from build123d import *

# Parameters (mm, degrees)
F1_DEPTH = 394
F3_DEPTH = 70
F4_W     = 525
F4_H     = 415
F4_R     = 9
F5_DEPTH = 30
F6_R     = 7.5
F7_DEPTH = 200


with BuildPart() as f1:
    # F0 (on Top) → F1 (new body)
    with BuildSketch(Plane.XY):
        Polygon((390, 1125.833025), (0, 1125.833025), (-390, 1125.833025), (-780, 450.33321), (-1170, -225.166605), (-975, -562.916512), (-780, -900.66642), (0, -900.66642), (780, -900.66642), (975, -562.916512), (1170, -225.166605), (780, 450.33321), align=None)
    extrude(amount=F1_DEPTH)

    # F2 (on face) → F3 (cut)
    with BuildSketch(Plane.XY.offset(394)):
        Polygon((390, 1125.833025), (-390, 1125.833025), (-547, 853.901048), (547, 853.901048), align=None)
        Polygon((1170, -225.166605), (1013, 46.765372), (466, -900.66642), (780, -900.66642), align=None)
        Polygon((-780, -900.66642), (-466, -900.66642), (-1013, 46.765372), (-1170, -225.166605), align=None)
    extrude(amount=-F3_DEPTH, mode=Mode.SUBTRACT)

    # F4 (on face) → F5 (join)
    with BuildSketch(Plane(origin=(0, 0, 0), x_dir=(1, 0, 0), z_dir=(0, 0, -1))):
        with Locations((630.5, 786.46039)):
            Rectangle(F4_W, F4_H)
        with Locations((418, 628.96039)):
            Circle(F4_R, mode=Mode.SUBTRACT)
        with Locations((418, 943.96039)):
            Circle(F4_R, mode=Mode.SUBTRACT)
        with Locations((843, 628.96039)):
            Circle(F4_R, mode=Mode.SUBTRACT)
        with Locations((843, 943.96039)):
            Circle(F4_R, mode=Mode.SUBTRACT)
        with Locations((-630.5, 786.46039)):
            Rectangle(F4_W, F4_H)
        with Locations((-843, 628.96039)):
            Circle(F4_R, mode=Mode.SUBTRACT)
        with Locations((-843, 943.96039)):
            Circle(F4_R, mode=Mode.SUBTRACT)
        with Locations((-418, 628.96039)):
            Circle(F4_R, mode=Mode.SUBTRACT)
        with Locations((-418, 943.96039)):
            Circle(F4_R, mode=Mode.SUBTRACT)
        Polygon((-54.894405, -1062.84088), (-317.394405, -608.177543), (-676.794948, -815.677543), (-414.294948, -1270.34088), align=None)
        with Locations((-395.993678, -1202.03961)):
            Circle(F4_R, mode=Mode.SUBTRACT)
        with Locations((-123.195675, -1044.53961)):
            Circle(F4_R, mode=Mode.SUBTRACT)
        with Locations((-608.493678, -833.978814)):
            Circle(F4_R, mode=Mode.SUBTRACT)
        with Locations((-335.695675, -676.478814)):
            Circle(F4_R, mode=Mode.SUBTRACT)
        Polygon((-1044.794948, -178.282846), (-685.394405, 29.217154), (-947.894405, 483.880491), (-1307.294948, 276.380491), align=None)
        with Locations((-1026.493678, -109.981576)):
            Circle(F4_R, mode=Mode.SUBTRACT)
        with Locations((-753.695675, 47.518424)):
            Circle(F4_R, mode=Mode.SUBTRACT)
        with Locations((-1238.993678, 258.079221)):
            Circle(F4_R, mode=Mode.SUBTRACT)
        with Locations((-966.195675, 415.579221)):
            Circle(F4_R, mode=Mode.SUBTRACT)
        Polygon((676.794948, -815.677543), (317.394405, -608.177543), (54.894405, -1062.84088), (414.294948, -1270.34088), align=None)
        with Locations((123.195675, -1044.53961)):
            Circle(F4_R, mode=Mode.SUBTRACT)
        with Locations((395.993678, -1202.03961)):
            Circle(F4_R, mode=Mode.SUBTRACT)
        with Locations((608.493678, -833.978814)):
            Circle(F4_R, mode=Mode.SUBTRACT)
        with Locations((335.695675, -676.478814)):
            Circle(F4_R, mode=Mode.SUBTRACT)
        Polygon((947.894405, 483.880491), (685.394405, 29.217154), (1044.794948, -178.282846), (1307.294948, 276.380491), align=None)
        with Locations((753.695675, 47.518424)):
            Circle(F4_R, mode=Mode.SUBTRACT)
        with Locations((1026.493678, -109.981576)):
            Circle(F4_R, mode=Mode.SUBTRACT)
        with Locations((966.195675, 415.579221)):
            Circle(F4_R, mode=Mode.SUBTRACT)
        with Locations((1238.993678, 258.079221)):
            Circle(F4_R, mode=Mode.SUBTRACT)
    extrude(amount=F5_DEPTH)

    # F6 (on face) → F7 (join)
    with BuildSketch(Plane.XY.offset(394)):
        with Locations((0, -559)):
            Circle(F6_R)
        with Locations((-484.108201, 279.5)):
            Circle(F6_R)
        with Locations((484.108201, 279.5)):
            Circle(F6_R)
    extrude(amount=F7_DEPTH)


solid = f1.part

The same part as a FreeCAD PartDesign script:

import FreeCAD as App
import Part
import Sketcher

V = App.Vector
Q = App.Units.Quantity

doc = App.newDocument("Part")
body = doc.addObject("PartDesign::Body", "Body")

# Sketch on XY plane
sketch1 = doc.addObject("Sketcher::SketchObject", "Sketch")
body.addObject(sketch1)
sketch1.AttachmentSupport = (doc.XY_Plane, [""])
sketch1.MapMode = "FlatFace"
sketch1.addGeometry([
    Part.LineSegment(V(390, 1125.833025, 0), V(-390, 1125.833025, 0)),  # 0
    Part.LineSegment(V(-390, 1125.833025, 0), V(-1170, -225.166605, 0)),  # 1
    Part.LineSegment(V(-1170, -225.166605, 0), V(-975, -562.916512, 0)),  # 2
    Part.LineSegment(V(-975, -562.916512, 0), V(-780, -900.66642, 0)),  # 3
    Part.LineSegment(V(-780, -900.66642, 0), V(780, -900.66642, 0)),  # 4
    Part.LineSegment(V(780, -900.66642, 0), V(975, -562.916512, 0)),  # 5
    Part.LineSegment(V(975, -562.916512, 0), V(1170, -225.166605, 0)),  # 6
    Part.LineSegment(V(1170, -225.166605, 0), V(390, 1125.833025, 0)),  # 7
], False)
sketch1.addConstraint([
    Sketcher.Constraint("Coincident", 0, 2, 1, 1),
    Sketcher.Constraint("Coincident", 1, 2, 2, 1),
    Sketcher.Constraint("Coincident", 2, 2, 3, 1),
    Sketcher.Constraint("Coincident", 3, 2, 4, 1),
    Sketcher.Constraint("Coincident", 4, 2, 5, 1),
    Sketcher.Constraint("Coincident", 5, 2, 6, 1),
    Sketcher.Constraint("Coincident", 6, 2, 7, 1),
    Sketcher.Constraint("Coincident", 7, 2, 0, 1),
    Sketcher.Constraint("Horizontal", 0),
    Sketcher.Constraint("Horizontal", 4),
    Sketcher.Constraint("Symmetric", 2, 2, 5, 2, -2),
    Sketcher.Constraint("Symmetric", 1, 2, 6, 2, -2),
    Sketcher.Constraint("Parallel", 2, 3),
    Sketcher.Constraint("Parallel", 1, 5),
    Sketcher.Constraint("Parallel", 5, 6),
    Sketcher.Constraint("Parallel", 3, 7),
    Sketcher.Constraint("Equal", 2, 3),
    Sketcher.Constraint("DistanceX", 0, 2, 0, 1, Q("780 mm")),
    Sketcher.Constraint("DistanceX", 4, 1, 4, 2, Q("1560 mm")),
    Sketcher.Constraint("Angle", 1, Q("-120 deg")),
    Sketcher.Constraint("Distance", 1, Q("1560 mm")),
    Sketcher.Constraint("DistanceY", 2, 2, -1, 1, Q("562.916512 mm")),
])
pad1 = doc.addObject("PartDesign::Pad", "Pad")
body.addObject(pad1)
pad1.Profile = sketch1
pad1.Length = 394

# Sketch on XY plane
sketch2 = doc.addObject("Sketcher::SketchObject", "Sketch001")
body.addObject(sketch2)
sketch2.AttachmentSupport = (doc.XY_Plane, [""])
sketch2.MapMode = "FlatFace"
sketch2.AttachmentOffset = App.Placement(V(0, 0, 394), App.Rotation())
sketch2.addGeometry([
    Part.LineSegment(V(390, 1125.833025, 0), V(-390, 1125.833025, 0)),  # 0
    Part.LineSegment(V(-390, 1125.833025, 0), V(-547, 853.901048, 0)),  # 1
    Part.LineSegment(V(-547, 853.901048, 0), V(547, 853.901048, 0)),  # 2
    Part.LineSegment(V(547, 853.901048, 0), V(390, 1125.833025, 0)),  # 3
    Part.LineSegment(V(1170, -225.166605, 0), V(1013, 46.765372, 0)),  # 4
    Part.LineSegment(V(1013, 46.765372, 0), V(466, -900.66642, 0)),  # 5
    Part.LineSegment(V(466, -900.66642, 0), V(780, -900.66642, 0)),  # 6
    Part.LineSegment(V(780, -900.66642, 0), V(1170, -225.166605, 0)),  # 7
    Part.LineSegment(V(-780, -900.66642, 0), V(-466, -900.66642, 0)),  # 8
    Part.LineSegment(V(-466, -900.66642, 0), V(-1013, 46.765372, 0)),  # 9
    Part.LineSegment(V(-1013, 46.765372, 0), V(-1170, -225.166605, 0)),  # 10
    Part.LineSegment(V(-1170, -225.166605, 0), V(-780, -900.66642, 0)),  # 11
], False)
sketch2.addConstraint([
    Sketcher.Constraint("Coincident", 0, 2, 1, 1),
    Sketcher.Constraint("Coincident", 1, 2, 2, 1),
    Sketcher.Constraint("Coincident", 2, 2, 3, 1),
    Sketcher.Constraint("Coincident", 3, 2, 0, 1),
    Sketcher.Constraint("Coincident", 4, 2, 5, 1),
    Sketcher.Constraint("Coincident", 5, 2, 6, 1),
    Sketcher.Constraint("Coincident", 6, 2, 7, 1),
    Sketcher.Constraint("Coincident", 7, 2, 4, 1),
    Sketcher.Constraint("Coincident", 8, 2, 9, 1),
    Sketcher.Constraint("Coincident", 9, 2, 10, 1),
    Sketcher.Constraint("Coincident", 10, 2, 11, 1),
    Sketcher.Constraint("Coincident", 11, 2, 8, 1),
    Sketcher.Constraint("Horizontal", 0),
    Sketcher.Constraint("Horizontal", 2),
    Sketcher.Constraint("Horizontal", 6),
    Sketcher.Constraint("Horizontal", 8),
    Sketcher.Constraint("Symmetric", 5, 2, 8, 2, -2),
    Sketcher.Constraint("Symmetric", 4, 2, 9, 2, -2),
    Sketcher.Constraint("Symmetric", 7, 2, 10, 2, -2),
    Sketcher.Constraint("Parallel", 3, 4),
    Sketcher.Constraint("Parallel", 1, 5),
    Sketcher.Constraint("Parallel", 5, 7),
    Sketcher.Constraint("Parallel", 4, 9),
    Sketcher.Constraint("Parallel", 9, 11),
    Sketcher.Constraint("Equal", 3, 4),
    Sketcher.Constraint("DistanceX", 0, 2, 0, 1, Q("780 mm")),
    Sketcher.Constraint("DistanceX", 2, 1, 2, 2, Q("1094 mm")),
    Sketcher.Constraint("Angle", 1, Q("-120 deg")),
    Sketcher.Constraint("Distance", 5, Q("1094 mm")),
    Sketcher.Constraint("DistanceX", 0, 2, -1, 1, Q("390 mm")),
    Sketcher.Constraint("DistanceX", -1, 1, 4, 2, Q("1013 mm")),
    Sketcher.Constraint("DistanceY", 5, 2, -1, 1, Q("900.66642 mm")),
    Sketcher.Constraint("DistanceY", 5, 2, 2, 2, Q("1754.567468 mm")),
])
pocket1 = doc.addObject("PartDesign::Pocket", "Pocket")
body.addObject(pocket1)
pocket1.Profile = sketch2
pocket1.Length = 70

# Sketch on XY plane
sketch3 = doc.addObject("Sketcher::SketchObject", "Sketch002")
body.addObject(sketch3)
sketch3.AttachmentSupport = (doc.XY_Plane, [""])
sketch3.MapMode = "FlatFace"
sketch3.addGeometry([
    Part.LineSegment(V(368, -993.96039, 0), V(368, -578.96039, 0)),  # 0
    Part.LineSegment(V(368, -578.96039, 0), V(893, -578.96039, 0)),  # 1
    Part.LineSegment(V(893, -578.96039, 0), V(893, -993.96039, 0)),  # 2
    Part.LineSegment(V(893, -993.96039, 0), V(368, -993.96039, 0)),  # 3
    Part.Circle(V(418, -628.96039, 0), V(0, 0, 1), 9),  # 4
    Part.Circle(V(843, -628.96039, 0), V(0, 0, 1), 9),  # 5
    Part.Circle(V(418, -943.96039, 0), V(0, 0, 1), 9),  # 6
    Part.Circle(V(843, -943.96039, 0), V(0, 0, 1), 9),  # 7
    Part.LineSegment(V(-893, -993.96039, 0), V(-893, -578.96039, 0)),  # 8
    Part.LineSegment(V(-893, -578.96039, 0), V(-368, -578.96039, 0)),  # 9
    Part.LineSegment(V(-368, -578.96039, 0), V(-368, -993.96039, 0)),  # 10
    Part.LineSegment(V(-368, -993.96039, 0), V(-893, -993.96039, 0)),  # 11
    Part.Circle(V(-843, -628.96039, 0), V(0, 0, 1), 9),  # 12
    Part.Circle(V(-418, -628.96039, 0), V(0, 0, 1), 9),  # 13
    Part.Circle(V(-843, -943.96039, 0), V(0, 0, 1), 9),  # 14
    Part.Circle(V(-418, -943.96039, 0), V(0, 0, 1), 9),  # 15
    Part.LineSegment(V(-54.894405, 1062.84088, 0), V(-317.394405, 608.177543, 0)),  # 16
    Part.LineSegment(V(-317.394405, 608.177543, 0), V(-676.794948, 815.677543, 0)),  # 17
    Part.LineSegment(V(-676.794948, 815.677543, 0), V(-414.294948, 1270.34088, 0)),  # 18
    Part.LineSegment(V(-414.294948, 1270.34088, 0), V(-54.894405, 1062.84088, 0)),  # 19
    Part.Circle(V(-395.993678, 1202.03961, 0), V(0, 0, 1), 9),  # 20
    Part.Circle(V(-123.195675, 1044.53961, 0), V(0, 0, 1), 9),  # 21
    Part.Circle(V(-608.493678, 833.978814, 0), V(0, 0, 1), 9),  # 22
    Part.Circle(V(-335.695675, 676.478814, 0), V(0, 0, 1), 9),  # 23
    Part.LineSegment(V(-1044.794948, 178.282846, 0), V(-685.394405, -29.217154, 0)),  # 24
    Part.LineSegment(V(-685.394405, -29.217154, 0), V(-947.894405, -483.880491, 0)),  # 25
    Part.LineSegment(V(-947.894405, -483.880491, 0), V(-1307.294948, -276.380491, 0)),  # 26
    Part.LineSegment(V(-1307.294948, -276.380491, 0), V(-1044.794948, 178.282846, 0)),  # 27
    Part.Circle(V(-1026.493678, 109.981576, 0), V(0, 0, 1), 9),  # 28
    Part.Circle(V(-753.695675, -47.518424, 0), V(0, 0, 1), 9),  # 29
    Part.Circle(V(-1238.993678, -258.079221, 0), V(0, 0, 1), 9),  # 30
    Part.Circle(V(-966.195675, -415.579221, 0), V(0, 0, 1), 9),  # 31
    Part.LineSegment(V(676.794948, 815.677543, 0), V(317.394405, 608.177543, 0)),  # 32
    Part.LineSegment(V(317.394405, 608.177543, 0), V(54.894405, 1062.84088, 0)),  # 33
    Part.LineSegment(V(54.894405, 1062.84088, 0), V(414.294948, 1270.34088, 0)),  # 34
    Part.LineSegment(V(414.294948, 1270.34088, 0), V(676.794948, 815.677543, 0)),  # 35
    Part.Circle(V(123.195675, 1044.53961, 0), V(0, 0, 1), 9),  # 36
    Part.Circle(V(395.993678, 1202.03961, 0), V(0, 0, 1), 9),  # 37
    Part.Circle(V(335.695675, 676.478814, 0), V(0, 0, 1), 9),  # 38
    Part.Circle(V(608.493678, 833.978814, 0), V(0, 0, 1), 9),  # 39
    Part.LineSegment(V(947.894405, -483.880491, 0), V(685.394405, -29.217154, 0)),  # 40
    Part.LineSegment(V(685.394405, -29.217154, 0), V(1044.794948, 178.282846, 0)),  # 41
    Part.LineSegment(V(1044.794948, 178.282846, 0), V(1307.294948, -276.380491, 0)),  # 42
    Part.LineSegment(V(1307.294948, -276.380491, 0), V(947.894405, -483.880491, 0)),  # 43
    Part.Circle(V(753.695675, -47.518424, 0), V(0, 0, 1), 9),  # 44
    Part.Circle(V(1026.493678, 109.981576, 0), V(0, 0, 1), 9),  # 45
    Part.Circle(V(966.195675, -415.579221, 0), V(0, 0, 1), 9),  # 46
    Part.Circle(V(1238.993678, -258.079221, 0), V(0, 0, 1), 9),  # 47
], False)
sketch3.addConstraint([
    Sketcher.Constraint("Coincident", 0, 2, 1, 1),
    Sketcher.Constraint("Coincident", 1, 2, 2, 1),
    Sketcher.Constraint("Coincident", 2, 2, 3, 1),
    Sketcher.Constraint("Coincident", 3, 2, 0, 1),
    Sketcher.Constraint("Coincident", 8, 2, 9, 1),
    Sketcher.Constraint("Coincident", 9, 2, 10, 1),
    Sketcher.Constraint("Coincident", 10, 2, 11, 1),
    Sketcher.Constraint("Coincident", 11, 2, 8, 1),
    Sketcher.Constraint("Coincident", 16, 2, 17, 1),
    Sketcher.Constraint("Coincident", 17, 2, 18, 1),
    Sketcher.Constraint("Coincident", 18, 2, 19, 1),
    Sketcher.Constraint("Coincident", 19, 2, 16, 1),
    Sketcher.Constraint("Coincident", 24, 2, 25, 1),
    Sketcher.Constraint("Coincident", 25, 2, 26, 1),
    Sketcher.Constraint("Coincident", 26, 2, 27, 1),
    Sketcher.Constraint("Coincident", 27, 2, 24, 1),
    Sketcher.Constraint("Coincident", 32, 2, 33, 1),
    Sketcher.Constraint("Coincident", 33, 2, 34, 1),
    Sketcher.Constraint("Coincident", 34, 2, 35, 1),
    Sketcher.Constraint("Coincident", 35, 2, 32, 1),
    Sketcher.Constraint("Coincident", 40, 2, 41, 1),
    Sketcher.Constraint("Coincident", 41, 2, 42, 1),
    Sketcher.Constraint("Coincident", 42, 2, 43, 1),
    Sketcher.Constraint("Coincident", 43, 2, 40, 1),
    Sketcher.Constraint("Vertical", 0),
    Sketcher.Constraint("Horizontal", 1),
    Sketcher.Constraint("Vertical", 2),
    Sketcher.Constraint("Horizontal", 3),
    Sketcher.Constraint("Vertical", 8),
    Sketcher.Constraint("Horizontal", 9),
    Sketcher.Constraint("Vertical", 10),
    Sketcher.Constraint("Horizontal", 11),
    Sketcher.Constraint("Equal", 4, 5),
    Sketcher.Constraint("Equal", 5, 6),
    Sketcher.Constraint("Equal", 6, 7),
    Sketcher.Constraint("Equal", 7, 12),
    Sketcher.Constraint("Equal", 12, 13),
    Sketcher.Constraint("Equal", 13, 14),
    Sketcher.Constraint("Equal", 14, 15),
    Sketcher.Constraint("Equal", 15, 20),
    Sketcher.Constraint("Equal", 20, 21),
    Sketcher.Constraint("Equal", 21, 22),
    Sketcher.Constraint("Equal", 22, 23),
    Sketcher.Constraint("Equal", 23, 28),
    Sketcher.Constraint("Equal", 28, 29),
    Sketcher.Constraint("Equal", 29, 30),
    Sketcher.Constraint("Equal", 30, 31),
    Sketcher.Constraint("Equal", 31, 36),
    Sketcher.Constraint("Equal", 36, 37),
    Sketcher.Constraint("Equal", 37, 38),
    Sketcher.Constraint("Equal", 38, 39),
    Sketcher.Constraint("Equal", 39, 44),
    Sketcher.Constraint("Equal", 44, 45),
    Sketcher.Constraint("Equal", 45, 46),
    Sketcher.Constraint("Equal", 46, 47),
    Sketcher.Constraint("Symmetric", 5, 3, 12, 3, -2),
    Sketcher.Constraint("Symmetric", 4, 3, 13, 3, -2),
    Sketcher.Constraint("Symmetric", 7, 3, 14, 3, -2),
    Sketcher.Constraint("Symmetric", 6, 3, 15, 3, -2),
    Sketcher.Constraint("Symmetric", 21, 3, 36, 3, -2),
    Sketcher.Constraint("Symmetric", 20, 3, 37, 3, -2),
    Sketcher.Constraint("Symmetric", 23, 3, 38, 3, -2),
    Sketcher.Constraint("Symmetric", 22, 3, 39, 3, -2),
    Sketcher.Constraint("Symmetric", 29, 3, 44, 3, -2),
    Sketcher.Constraint("Symmetric", 28, 3, 45, 3, -2),
    Sketcher.Constraint("Symmetric", 31, 3, 46, 3, -2),
    Sketcher.Constraint("Symmetric", 30, 3, 47, 3, -2),
    Sketcher.Constraint("Symmetric", 1, 2, 8, 2, -2),
    Sketcher.Constraint("Symmetric", 3, 2, 10, 2, -2),
    Sketcher.Constraint("Symmetric", 16, 2, 32, 2, -2),
    Sketcher.Constraint("Symmetric", 19, 2, 33, 2, -2),
    Sketcher.Constraint("Symmetric", 18, 2, 34, 2, -2),
    Sketcher.Constraint("Symmetric", 17, 2, 35, 2, -2),
    Sketcher.Constraint("Symmetric", 24, 2, 40, 2, -2),
    Sketcher.Constraint("Symmetric", 27, 2, 41, 2, -2),
    Sketcher.Constraint("Symmetric", 26, 2, 42, 2, -2),
    Sketcher.Constraint("Symmetric", 25, 2, 43, 2, -2),
    Sketcher.Constraint("Perpendicular", 16, 17),
    Sketcher.Constraint("Perpendicular", 17, 18),
    Sketcher.Constraint("Perpendicular", 18, 19),
    Sketcher.Constraint("Parallel", 19, 24),
    Sketcher.Constraint("Perpendicular", 24, 25),
    Sketcher.Constraint("Perpendicular", 25, 26),
    Sketcher.Constraint("Perpendicular", 26, 27),
    Sketcher.Constraint("Horizontal", 4, 3, 5, 3),
    Sketcher.Constraint("Horizontal", 6, 3, 7, 3),
    Sketcher.Constraint("Vertical", 4, 3, 6, 3),
    Sketcher.Constraint("Vertical", 5, 3, 7, 3),
    Sketcher.Constraint("Equal", 19, 24),
    Sketcher.Constraint("Equal", 18, 25),
    Sketcher.Constraint("Diameter", 4, Q("18 mm")),
    Sketcher.Constraint("DistanceX", 1, 1, 1, 2, Q("525 mm")),
    Sketcher.Constraint("DistanceY", 0, 1, 0, 2, Q("415 mm")),
    Sketcher.Constraint("Angle", 16, Q("-120 deg")),
    Sketcher.Constraint("Distance", 16, Q("525 mm")),
    Sketcher.Constraint("Distance", 17, Q("415 mm")),
    Sketcher.Constraint("DistanceX", -1, 1, 4, 3, Q("418 mm")),
    Sketcher.Constraint("DistanceX", -1, 1, 5, 3, Q("843 mm")),
    Sketcher.Constraint("DistanceX", -1, 1, 0, 2, Q("368 mm")),
    Sketcher.Constraint("DistanceY", 6, 3, 4, 3, Q("315 mm")),
    Sketcher.Constraint("DistanceY", 13, 3, 20, 3, Q("1831 mm")),
    Sketcher.Constraint("DistanceX", 28, 3, 22, 3, Q("418 mm")),
    Sketcher.Constraint("DistanceX", 29, 3, 23, 3, Q("418 mm")),
    Sketcher.Constraint("DistanceY", 4, 3, 0, 2, Q("50 mm")),
    Sketcher.Constraint("DistanceY", 21, 3, 20, 3, Q("157.5 mm")),
    Sketcher.Constraint("DistanceX", 22, 3, 20, 3, Q("212.5 mm")),
    Sketcher.Constraint("DistanceY", 23, 3, 22, 3, Q("157.5 mm")),
    Sketcher.Constraint("DistanceX", 23, 3, 21, 3, Q("212.5 mm")),
    Sketcher.Constraint("DistanceY", 29, 3, 28, 3, Q("157.5 mm")),
    Sketcher.Constraint("DistanceX", 30, 3, 28, 3, Q("212.5 mm")),
    Sketcher.Constraint("DistanceY", 31, 3, 30, 3, Q("157.5 mm")),
    Sketcher.Constraint("DistanceX", 31, 3, 29, 3, Q("212.5 mm")),
    Sketcher.Constraint("DistanceY", 8, 2, 25, 2, Q("95.079899 mm")),
    Sketcher.Constraint("DistanceY", 4, 3, -1, 1, Q("628.96039 mm")),
    Sketcher.Constraint("DistanceX", 20, 3, -1, 1, Q("395.993678 mm")),
    Sketcher.Constraint("DistanceY", 30, 3, -1, 1, Q("258.079221 mm")),
    Sketcher.Constraint("DistanceX", 17, 2, -1, 1, Q("676.794948 mm")),
    Sketcher.Constraint("DistanceY", -1, 1, 18, 2, Q("1270.34088 mm")),
    Sketcher.Constraint("DistanceX", 26, 2, -1, 1, Q("1307.294948 mm")),
    Sketcher.Constraint("DistanceY", 28, 3, 22, 3, Q("723.997238 mm")),
    Sketcher.Constraint("DistanceX", 21, 3, 36, 3, Q("246.39135 mm")),
    Sketcher.Constraint("DistanceY", 16, 2, 23, 3, Q("68.301271 mm")),
])
pad2 = doc.addObject("PartDesign::Pad", "Pad001")
body.addObject(pad2)
pad2.Profile = sketch3
pad2.Length = 30
pad2.Reversed = True

# Sketch on XY plane
sketch4 = doc.addObject("Sketcher::SketchObject", "Sketch003")
body.addObject(sketch4)
sketch4.AttachmentSupport = (doc.XY_Plane, [""])
sketch4.MapMode = "FlatFace"
sketch4.AttachmentOffset = App.Placement(V(0, 0, 394), App.Rotation())
sketch4.addGeometry([
    Part.Circle(V(0, -559, 0), V(0, 0, 1), 7.5),
    Part.Circle(V(-484.108201, 279.5, 0), V(0, 0, 1), 7.5),
    Part.Circle(V(484.108201, 279.5, 0), V(0, 0, 1), 7.5),
], False)
sketch4.addConstraint([
    Sketcher.Constraint("Equal", 0, 1),
    Sketcher.Constraint("Equal", 1, 2),
    Sketcher.Constraint("Symmetric", 1, 3, 2, 3, -2),
    Sketcher.Constraint("PointOnObject", 0, 3, -2),
    Sketcher.Constraint("Diameter", 0, Q("15 mm")),
    Sketcher.Constraint("DistanceY", 0, 3, -1, 1, Q("559 mm")),
    Sketcher.Constraint("DistanceY", -1, 1, 1, 3, Q("279.5 mm")),
    Sketcher.Constraint("DistanceX", 1, 3, -1, 1, Q("484.108201 mm")),
])
pad3 = doc.addObject("PartDesign::Pad", "Pad002")
body.addObject(pad3)
pad3.Profile = sketch4
pad3.Length = 200

doc.recompute()
